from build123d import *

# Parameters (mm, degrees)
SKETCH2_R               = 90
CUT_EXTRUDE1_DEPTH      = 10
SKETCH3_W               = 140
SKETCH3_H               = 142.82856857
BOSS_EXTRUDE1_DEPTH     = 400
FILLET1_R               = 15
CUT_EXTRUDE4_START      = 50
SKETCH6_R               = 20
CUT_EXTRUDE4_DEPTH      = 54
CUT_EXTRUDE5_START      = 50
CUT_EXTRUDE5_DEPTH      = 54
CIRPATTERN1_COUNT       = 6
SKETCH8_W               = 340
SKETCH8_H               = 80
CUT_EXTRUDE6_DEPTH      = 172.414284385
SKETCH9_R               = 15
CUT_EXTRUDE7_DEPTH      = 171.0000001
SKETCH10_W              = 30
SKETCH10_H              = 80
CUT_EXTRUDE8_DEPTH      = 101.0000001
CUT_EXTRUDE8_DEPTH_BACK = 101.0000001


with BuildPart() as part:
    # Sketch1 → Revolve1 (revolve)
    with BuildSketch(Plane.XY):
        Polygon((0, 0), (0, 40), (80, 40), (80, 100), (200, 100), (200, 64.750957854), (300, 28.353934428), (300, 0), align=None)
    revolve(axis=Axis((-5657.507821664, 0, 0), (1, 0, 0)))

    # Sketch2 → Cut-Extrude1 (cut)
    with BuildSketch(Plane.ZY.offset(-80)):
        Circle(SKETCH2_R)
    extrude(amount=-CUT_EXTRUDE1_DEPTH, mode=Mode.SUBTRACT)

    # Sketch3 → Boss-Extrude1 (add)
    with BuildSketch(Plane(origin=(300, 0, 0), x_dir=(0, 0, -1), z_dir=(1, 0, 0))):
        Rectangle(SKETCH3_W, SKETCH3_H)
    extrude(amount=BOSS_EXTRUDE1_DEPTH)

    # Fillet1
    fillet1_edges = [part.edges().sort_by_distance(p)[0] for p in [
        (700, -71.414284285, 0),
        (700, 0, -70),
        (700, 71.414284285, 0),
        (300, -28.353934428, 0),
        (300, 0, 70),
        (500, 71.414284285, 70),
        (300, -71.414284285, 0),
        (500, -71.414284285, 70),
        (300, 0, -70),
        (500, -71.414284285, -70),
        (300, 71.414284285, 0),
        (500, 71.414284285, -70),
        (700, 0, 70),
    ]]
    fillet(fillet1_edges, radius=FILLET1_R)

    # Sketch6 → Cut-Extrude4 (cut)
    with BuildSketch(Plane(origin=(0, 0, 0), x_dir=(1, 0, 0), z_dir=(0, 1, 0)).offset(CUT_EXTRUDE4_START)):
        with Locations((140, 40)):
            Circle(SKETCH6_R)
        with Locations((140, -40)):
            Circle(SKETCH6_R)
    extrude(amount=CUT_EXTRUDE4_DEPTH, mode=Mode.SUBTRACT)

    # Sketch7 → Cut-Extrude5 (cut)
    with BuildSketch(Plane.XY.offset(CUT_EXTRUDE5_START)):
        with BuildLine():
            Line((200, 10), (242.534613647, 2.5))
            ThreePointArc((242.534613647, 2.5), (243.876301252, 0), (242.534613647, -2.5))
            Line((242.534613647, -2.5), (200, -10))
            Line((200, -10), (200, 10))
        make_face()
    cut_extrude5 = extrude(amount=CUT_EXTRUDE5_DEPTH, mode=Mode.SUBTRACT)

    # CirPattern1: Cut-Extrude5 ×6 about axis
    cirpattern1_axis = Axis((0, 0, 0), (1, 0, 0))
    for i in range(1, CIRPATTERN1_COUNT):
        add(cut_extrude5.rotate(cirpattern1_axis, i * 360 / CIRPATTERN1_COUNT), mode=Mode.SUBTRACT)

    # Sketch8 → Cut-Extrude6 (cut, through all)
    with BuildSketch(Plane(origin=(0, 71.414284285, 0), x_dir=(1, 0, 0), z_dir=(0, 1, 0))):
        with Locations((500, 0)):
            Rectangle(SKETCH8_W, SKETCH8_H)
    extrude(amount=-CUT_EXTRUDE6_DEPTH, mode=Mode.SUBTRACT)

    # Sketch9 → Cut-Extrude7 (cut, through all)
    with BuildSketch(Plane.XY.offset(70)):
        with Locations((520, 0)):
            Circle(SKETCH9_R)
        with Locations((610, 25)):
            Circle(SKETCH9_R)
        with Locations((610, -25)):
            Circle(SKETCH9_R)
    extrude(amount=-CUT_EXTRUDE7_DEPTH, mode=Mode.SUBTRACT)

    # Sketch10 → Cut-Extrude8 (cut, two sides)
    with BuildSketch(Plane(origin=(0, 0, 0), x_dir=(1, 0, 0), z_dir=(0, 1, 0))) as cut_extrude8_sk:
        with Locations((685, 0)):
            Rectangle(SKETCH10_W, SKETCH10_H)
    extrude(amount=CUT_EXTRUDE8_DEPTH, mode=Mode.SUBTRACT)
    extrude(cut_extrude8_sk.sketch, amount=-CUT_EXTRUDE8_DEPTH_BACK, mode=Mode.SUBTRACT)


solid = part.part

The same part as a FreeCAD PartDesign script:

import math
import FreeCAD as App
import Part
import Sketcher
Q = App.Units.Quantity


def edges_at(feature, points):
    """Names of the edges that pass closest to the given points."""
    edges = feature.Shape.Edges
    near = lambda p: min(range(len(edges)), key=lambda i: edges[i].distToShape(Part.Vertex(*p))[0])
    return sorted({f"Edge{near(p) + 1}" for p in points})


def add_polygon(sketch, points):
    """Adds a closed chain of lines whose ends are joined by coincident constraints."""
    first, n = sketch.GeometryCount, len(points)
    for a, b in zip(points, points[1:] + points[:1]):
        sketch.addGeometry(Part.LineSegment(App.Vector(*a, 0), App.Vector(*b, 0)), False)
    for i in range(n):
        sketch.addConstraint(Sketcher.Constraint("Coincident", first + i, 2, first + (i + 1) % n, 1))

doc = App.newDocument("Part")
body = doc.addObject("PartDesign::Body", "Body")
body.AllowCompound = True

# Sketch on XY plane
sketch1 = body.newObject("Sketcher::SketchObject", "Sketch")
sketch1.AttachmentSupport = (doc.getObject("XY_Plane"), [""])
sketch1.MapMode = "FlatFace"
add_polygon(sketch1, [(0, 40), (0, 0), (300, 0), (300, 28), (200, 65), (200, 100), (80, 100), (80, 40)])  # lines 0-7
sketch1.addConstraint([
    Sketcher.Constraint("Vertical", 0),
    Sketcher.Constraint("Horizontal", 1),
    Sketcher.Constraint("Vertical", 2),
    Sketcher.Constraint("Vertical", 4),
    Sketcher.Constraint("Horizontal", 5),
    Sketcher.Constraint("Vertical", 6),
    Sketcher.Constraint("Horizontal", 7),
    Sketcher.Constraint("Coincident", 0, 2, -1, 1),
    Sketcher.Constraint("DistanceX", 1, 1, 1, 2, Q("300 mm")),
    Sketcher.Constraint("DistanceX", 5, 2, 5, 1, Q("120 mm")),
    Sketcher.Constraint("DistanceX", 7, 2, 7, 1, Q("80 mm")),
    Sketcher.Constraint("DistanceY", 0, 2, 0, 1, Q("40 mm")),
    Sketcher.Constraint("DistanceY", 6, 2, 6, 1, Q("60 mm")),
    Sketcher.Constraint("Angle", 3, Q("160 deg")),
    Sketcher.Constraint("DistanceY", 2, 1, 2, 2, Q("28.353934 mm")),
])
revolution = body.newObject("PartDesign::Revolution", "Revolution")
revolution.Profile = sketch1
revolution.ReferenceAxis = (sketch1, ["H_Axis"])
revolution.Angle = 360

# Sketch on YZ plane
sketch2 = body.newObject("Sketcher::SketchObject", "Sketch001")
sketch2.AttachmentSupport = (doc.getObject("YZ_Plane"), [""])
sketch2.MapMode = "FlatFace"
sketch2.AttachmentOffset = App.Placement(App.Vector(0, 0, 80), App.Rotation())
sketch2.addGeometry(Part.Circle(App.Vector(0, 0, 0), App.Vector(0, 0, 1), 90), False)
sketch2.addConstraint([
    Sketcher.Constraint("Coincident", 0, 3, -1, 1),
    Sketcher.Constraint("Diameter", 0, Q("180 mm")),
])
pocket1 = body.newObject("PartDesign::Pocket", "Pocket")
pocket1.Profile = sketch2
pocket1.Length = 10
pocket1.Reversed = True

# Sketch on YZ plane
sketch3 = body.newObject("Sketcher::SketchObject", "Sketch002")
sketch3.AttachmentSupport = (doc.getObject("YZ_Plane"), [""])
sketch3.MapMode = "FlatFace"
sketch3.AttachmentOffset = App.Placement(App.Vector(0, 0, 300), App.Rotation())
add_polygon(sketch3, [(71, 70), (-71, 70), (-71, -70), (71, -70)])  # lines 0-3
sketch3.addConstraint([
    Sketcher.Constraint("Horizontal", 0),
    Sketcher.Constraint("Vertical", 1),
    Sketcher.Constraint("Horizontal", 2),
    Sketcher.Constraint("Vertical", 3),
    Sketcher.Constraint("Symmetric", 0, 2, 2, 2, -1, 1),
    Sketcher.Constraint("DistanceY", 1, 2, 1, 1, Q("140 mm")),
    Sketcher.Constraint("DistanceX", 0, 2, 0, 1, Q("142.828569 mm")),
])
pad1 = body.newObject("PartDesign::Pad", "Pad")
pad1.Profile = sketch3
pad1.Length = 400
doc.recompute()

fillet = body.newObject("PartDesign::Fillet", "Fillet")
fillet.Base = (pad1, edges_at(pad1, [
    (700, -71.414, 0),
    (700, 0, -70),
    (700, 71.414, 0),
    (300, -28.354, 0),
    (300, 0, 70),
    (500, 71.414, 70),
    (300, -71.414, 0),
    (500, -71.414, 70),
    (300, 0, -70),
    (500, -71.414, -70),
    (300, 71.414, 0),
    (500, 71.414, -70),
    (700, 0, 70),
]))
fillet.Radius = 15

# Sketch on XZ plane
sketch4 = body.newObject("Sketcher::SketchObject", "Sketch003")
sketch4.AttachmentSupport = (doc.getObject("XZ_Plane"), [""])
sketch4.MapMode = "FlatFace"
sketch4.AttachmentOffset = App.Placement(App.Vector(0, 0, -50), App.Rotation())
sketch4.addGeometry([
    Part.Circle(App.Vector(140, -40, 0), App.Vector(0, 0, 1), 20),
    Part.Circle(App.Vector(140, 40, 0), App.Vector(0, 0, 1), 20),
], False)
sketch4.addConstraint([
    Sketcher.Constraint("Equal", 0, 1),
    Sketcher.Constraint("Symmetric", 0, 3, 1, 3, -1),
    Sketcher.Constraint("Diameter", 0, Q("40 mm")),
    Sketcher.Constraint("DistanceX", -1, 1, 0, 3, Q("140 mm")),
    Sketcher.Constraint("DistanceY", 0, 3, -1, 1, Q("40 mm")),
])
pocket2 = body.newObject("PartDesign::Pocket", "Pocket001")
pocket2.Profile = sketch4
pocket2.Length = 54

# Sketch on XY plane
sketch5 = body.newObject("Sketcher::SketchObject", "Sketch004")
sketch5.AttachmentSupport = (doc.getObject("XY_Plane"), [""])
sketch5.MapMode = "FlatFace"
sketch5.AttachmentOffset = App.Placement(App.Vector(0, 0, 50), App.Rotation())
sketch5.addGeometry([
    Part.LineSegment(App.Vector(242.5, 2.5, 0), App.Vector(200, 10, 0)),
    Part.LineSegment(App.Vector(200, 10, 0), App.Vector(200, -10, 0)),
    Part.LineSegment(App.Vector(200, -10, 0), App.Vector(242.5, -2.5, 0)),
    Part.ArcOfCircle(Part.Circle(App.Vector(240.9, 0, 0), App.Vector(0, 0, 1), 3), math.radians(-56), math.radians(56)),
], False)
sketch5.addConstraint([
    Sketcher.Constraint("Coincident", 0, 2, 1, 1),
    Sketcher.Constraint("Coincident", 1, 2, 2, 1),
    Sketcher.Constraint("Coincident", 2, 2, 3, 1),
    Sketcher.Constraint("Coincident", 3, 2, 0, 1),
    Sketcher.Constraint("Vertical", 1),
    Sketcher.Constraint("Symmetric", 2, 2, 3, 2, -1),
    Sketcher.Constraint("Equal", 0, 2),
    Sketcher.Constraint("Radius", 3, Q("3 mm")),
    Sketcher.Constraint("DistanceY", 1, 2, 1, 1, Q("20 mm")),
    Sketcher.Constraint("Angle", 0, Q("170 deg")),
    Sketcher.Constraint("DistanceX", -1, 1, 0, 2, Q("200 mm")),
    Sketcher.Constraint("DistanceY", 2, 2, 3, 2, Q("5 mm")),
])
pocket3 = body.newObject("PartDesign::Pocket", "Pocket002")
pocket3.Profile = sketch5
pocket3.Length = 54
pocket3.Reversed = True
doc.recompute()

polarpattern = body.newObject("PartDesign::PolarPattern", "PolarPattern")
polarpattern.Originals = [pocket3]
polarpattern.Axis = (doc.getObject("X_Axis"), [""])
polarpattern.Angle = 360
polarpattern.Occurrences = 6
body.Tip = polarpattern

# Sketch on XZ plane
sketch6 = body.newObject("Sketcher::SketchObject", "Sketch005")
sketch6.AttachmentSupport = (doc.getObject("XZ_Plane"), [""])
sketch6.MapMode = "FlatFace"
sketch6.AttachmentOffset = App.Placement(App.Vector(0, 0, -71.414284), App.Rotation())
add_polygon(sketch6, [(330, -40), (330, 40), (670, 40), (670, -40)])  # lines 0-3
sketch6.addConstraint([
    Sketcher.Constraint("Vertical", 0),
    Sketcher.Constraint("Horizontal", 1),
    Sketcher.Constraint("Vertical", 2),
    Sketcher.Constraint("Horizontal", 3),
    Sketcher.Constraint("DistanceX", 1, 1, 1, 2, Q("340 mm")),
    Sketcher.Constraint("DistanceY", 0, 1, 0, 2, Q("80 mm")),
    Sketcher.Constraint("DistanceX", -1, 1, 0, 2, Q("330 mm")),
    Sketcher.Constraint("DistanceY", -1, 1, 0, 2, Q("40 mm")),
])
pocket4 = body.newObject("PartDesign::Pocket", "Pocket003")
pocket4.Profile = sketch6
pocket4.Type = "ThroughAll"
pocket4.Reversed = True

# Sketch on XY plane
sketch7 = body.newObject("Sketcher::SketchObject", "Sketch006")
sketch7.AttachmentSupport = (doc.getObject("XY_Plane"), [""])
sketch7.MapMode = "FlatFace"
sketch7.AttachmentOffset = App.Placement(App.Vector(0, 0, 70), App.Rotation())
sketch7.addGeometry([
    Part.Circle(App.Vector(520, 0, 0), App.Vector(0, 0, 1), 15),
    Part.Circle(App.Vector(610, 25, 0), App.Vector(0, 0, 1), 15),
    Part.Circle(App.Vector(610, -25, 0), App.Vector(0, 0, 1), 15),
], False)
sketch7.addConstraint([
    Sketcher.Constraint("Equal", 0, 1),
    Sketcher.Constraint("Equal", 1, 2),
    Sketcher.Constraint("Symmetric", 1, 3, 2, 3, -1),
    Sketcher.Constraint("PointOnObject", 0, 3, -1),
    Sketcher.Constraint("Diameter", 0, Q("30 mm")),
    Sketcher.Constraint("DistanceX", -1, 1, 0, 3, Q("520 mm")),
    Sketcher.Constraint("DistanceX", -1, 1, 1, 3, Q("610 mm")),
    Sketcher.Constraint("DistanceY", -1, 1, 1, 3, Q("25 mm")),
])
pocket5 = body.newObject("PartDesign::Pocket", "Pocket004")
pocket5.Profile = sketch7
pocket5.Type = "ThroughAll"

# Sketch on XZ plane
sketch8 = body.newObject("Sketcher::SketchObject", "Sketch007")
sketch8.AttachmentSupport = (doc.getObject("XZ_Plane"), [""])
sketch8.MapMode = "FlatFace"
add_polygon(sketch8, [(670, -40), (670, 40), (700, 40), (700, -40)])  # lines 0-3
sketch8.addConstraint([
    Sketcher.Constraint("Vertical", 0),
    Sketcher.Constraint("Horizontal", 1),
    Sketcher.Constraint("Vertical", 2),
    Sketcher.Constraint("Horizontal", 3),
    Sketcher.Constraint("DistanceX", 1, 1, 1, 2, Q("30 mm")),
    Sketcher.Constraint("DistanceY", 0, 1, 0, 2, Q("80 mm")),
    Sketcher.Constraint("DistanceX", -1, 1, 0, 2, Q("670 mm")),
    Sketcher.Constraint("DistanceY", -1, 1, 0, 2, Q("40 mm")),
])
pocket6 = body.newObject("PartDesign::Pocket", "Pocket005")
pocket6.Profile = sketch8
pocket6.Type = "ThroughAll"
pocket6.Midplane = True

doc.recompute()
